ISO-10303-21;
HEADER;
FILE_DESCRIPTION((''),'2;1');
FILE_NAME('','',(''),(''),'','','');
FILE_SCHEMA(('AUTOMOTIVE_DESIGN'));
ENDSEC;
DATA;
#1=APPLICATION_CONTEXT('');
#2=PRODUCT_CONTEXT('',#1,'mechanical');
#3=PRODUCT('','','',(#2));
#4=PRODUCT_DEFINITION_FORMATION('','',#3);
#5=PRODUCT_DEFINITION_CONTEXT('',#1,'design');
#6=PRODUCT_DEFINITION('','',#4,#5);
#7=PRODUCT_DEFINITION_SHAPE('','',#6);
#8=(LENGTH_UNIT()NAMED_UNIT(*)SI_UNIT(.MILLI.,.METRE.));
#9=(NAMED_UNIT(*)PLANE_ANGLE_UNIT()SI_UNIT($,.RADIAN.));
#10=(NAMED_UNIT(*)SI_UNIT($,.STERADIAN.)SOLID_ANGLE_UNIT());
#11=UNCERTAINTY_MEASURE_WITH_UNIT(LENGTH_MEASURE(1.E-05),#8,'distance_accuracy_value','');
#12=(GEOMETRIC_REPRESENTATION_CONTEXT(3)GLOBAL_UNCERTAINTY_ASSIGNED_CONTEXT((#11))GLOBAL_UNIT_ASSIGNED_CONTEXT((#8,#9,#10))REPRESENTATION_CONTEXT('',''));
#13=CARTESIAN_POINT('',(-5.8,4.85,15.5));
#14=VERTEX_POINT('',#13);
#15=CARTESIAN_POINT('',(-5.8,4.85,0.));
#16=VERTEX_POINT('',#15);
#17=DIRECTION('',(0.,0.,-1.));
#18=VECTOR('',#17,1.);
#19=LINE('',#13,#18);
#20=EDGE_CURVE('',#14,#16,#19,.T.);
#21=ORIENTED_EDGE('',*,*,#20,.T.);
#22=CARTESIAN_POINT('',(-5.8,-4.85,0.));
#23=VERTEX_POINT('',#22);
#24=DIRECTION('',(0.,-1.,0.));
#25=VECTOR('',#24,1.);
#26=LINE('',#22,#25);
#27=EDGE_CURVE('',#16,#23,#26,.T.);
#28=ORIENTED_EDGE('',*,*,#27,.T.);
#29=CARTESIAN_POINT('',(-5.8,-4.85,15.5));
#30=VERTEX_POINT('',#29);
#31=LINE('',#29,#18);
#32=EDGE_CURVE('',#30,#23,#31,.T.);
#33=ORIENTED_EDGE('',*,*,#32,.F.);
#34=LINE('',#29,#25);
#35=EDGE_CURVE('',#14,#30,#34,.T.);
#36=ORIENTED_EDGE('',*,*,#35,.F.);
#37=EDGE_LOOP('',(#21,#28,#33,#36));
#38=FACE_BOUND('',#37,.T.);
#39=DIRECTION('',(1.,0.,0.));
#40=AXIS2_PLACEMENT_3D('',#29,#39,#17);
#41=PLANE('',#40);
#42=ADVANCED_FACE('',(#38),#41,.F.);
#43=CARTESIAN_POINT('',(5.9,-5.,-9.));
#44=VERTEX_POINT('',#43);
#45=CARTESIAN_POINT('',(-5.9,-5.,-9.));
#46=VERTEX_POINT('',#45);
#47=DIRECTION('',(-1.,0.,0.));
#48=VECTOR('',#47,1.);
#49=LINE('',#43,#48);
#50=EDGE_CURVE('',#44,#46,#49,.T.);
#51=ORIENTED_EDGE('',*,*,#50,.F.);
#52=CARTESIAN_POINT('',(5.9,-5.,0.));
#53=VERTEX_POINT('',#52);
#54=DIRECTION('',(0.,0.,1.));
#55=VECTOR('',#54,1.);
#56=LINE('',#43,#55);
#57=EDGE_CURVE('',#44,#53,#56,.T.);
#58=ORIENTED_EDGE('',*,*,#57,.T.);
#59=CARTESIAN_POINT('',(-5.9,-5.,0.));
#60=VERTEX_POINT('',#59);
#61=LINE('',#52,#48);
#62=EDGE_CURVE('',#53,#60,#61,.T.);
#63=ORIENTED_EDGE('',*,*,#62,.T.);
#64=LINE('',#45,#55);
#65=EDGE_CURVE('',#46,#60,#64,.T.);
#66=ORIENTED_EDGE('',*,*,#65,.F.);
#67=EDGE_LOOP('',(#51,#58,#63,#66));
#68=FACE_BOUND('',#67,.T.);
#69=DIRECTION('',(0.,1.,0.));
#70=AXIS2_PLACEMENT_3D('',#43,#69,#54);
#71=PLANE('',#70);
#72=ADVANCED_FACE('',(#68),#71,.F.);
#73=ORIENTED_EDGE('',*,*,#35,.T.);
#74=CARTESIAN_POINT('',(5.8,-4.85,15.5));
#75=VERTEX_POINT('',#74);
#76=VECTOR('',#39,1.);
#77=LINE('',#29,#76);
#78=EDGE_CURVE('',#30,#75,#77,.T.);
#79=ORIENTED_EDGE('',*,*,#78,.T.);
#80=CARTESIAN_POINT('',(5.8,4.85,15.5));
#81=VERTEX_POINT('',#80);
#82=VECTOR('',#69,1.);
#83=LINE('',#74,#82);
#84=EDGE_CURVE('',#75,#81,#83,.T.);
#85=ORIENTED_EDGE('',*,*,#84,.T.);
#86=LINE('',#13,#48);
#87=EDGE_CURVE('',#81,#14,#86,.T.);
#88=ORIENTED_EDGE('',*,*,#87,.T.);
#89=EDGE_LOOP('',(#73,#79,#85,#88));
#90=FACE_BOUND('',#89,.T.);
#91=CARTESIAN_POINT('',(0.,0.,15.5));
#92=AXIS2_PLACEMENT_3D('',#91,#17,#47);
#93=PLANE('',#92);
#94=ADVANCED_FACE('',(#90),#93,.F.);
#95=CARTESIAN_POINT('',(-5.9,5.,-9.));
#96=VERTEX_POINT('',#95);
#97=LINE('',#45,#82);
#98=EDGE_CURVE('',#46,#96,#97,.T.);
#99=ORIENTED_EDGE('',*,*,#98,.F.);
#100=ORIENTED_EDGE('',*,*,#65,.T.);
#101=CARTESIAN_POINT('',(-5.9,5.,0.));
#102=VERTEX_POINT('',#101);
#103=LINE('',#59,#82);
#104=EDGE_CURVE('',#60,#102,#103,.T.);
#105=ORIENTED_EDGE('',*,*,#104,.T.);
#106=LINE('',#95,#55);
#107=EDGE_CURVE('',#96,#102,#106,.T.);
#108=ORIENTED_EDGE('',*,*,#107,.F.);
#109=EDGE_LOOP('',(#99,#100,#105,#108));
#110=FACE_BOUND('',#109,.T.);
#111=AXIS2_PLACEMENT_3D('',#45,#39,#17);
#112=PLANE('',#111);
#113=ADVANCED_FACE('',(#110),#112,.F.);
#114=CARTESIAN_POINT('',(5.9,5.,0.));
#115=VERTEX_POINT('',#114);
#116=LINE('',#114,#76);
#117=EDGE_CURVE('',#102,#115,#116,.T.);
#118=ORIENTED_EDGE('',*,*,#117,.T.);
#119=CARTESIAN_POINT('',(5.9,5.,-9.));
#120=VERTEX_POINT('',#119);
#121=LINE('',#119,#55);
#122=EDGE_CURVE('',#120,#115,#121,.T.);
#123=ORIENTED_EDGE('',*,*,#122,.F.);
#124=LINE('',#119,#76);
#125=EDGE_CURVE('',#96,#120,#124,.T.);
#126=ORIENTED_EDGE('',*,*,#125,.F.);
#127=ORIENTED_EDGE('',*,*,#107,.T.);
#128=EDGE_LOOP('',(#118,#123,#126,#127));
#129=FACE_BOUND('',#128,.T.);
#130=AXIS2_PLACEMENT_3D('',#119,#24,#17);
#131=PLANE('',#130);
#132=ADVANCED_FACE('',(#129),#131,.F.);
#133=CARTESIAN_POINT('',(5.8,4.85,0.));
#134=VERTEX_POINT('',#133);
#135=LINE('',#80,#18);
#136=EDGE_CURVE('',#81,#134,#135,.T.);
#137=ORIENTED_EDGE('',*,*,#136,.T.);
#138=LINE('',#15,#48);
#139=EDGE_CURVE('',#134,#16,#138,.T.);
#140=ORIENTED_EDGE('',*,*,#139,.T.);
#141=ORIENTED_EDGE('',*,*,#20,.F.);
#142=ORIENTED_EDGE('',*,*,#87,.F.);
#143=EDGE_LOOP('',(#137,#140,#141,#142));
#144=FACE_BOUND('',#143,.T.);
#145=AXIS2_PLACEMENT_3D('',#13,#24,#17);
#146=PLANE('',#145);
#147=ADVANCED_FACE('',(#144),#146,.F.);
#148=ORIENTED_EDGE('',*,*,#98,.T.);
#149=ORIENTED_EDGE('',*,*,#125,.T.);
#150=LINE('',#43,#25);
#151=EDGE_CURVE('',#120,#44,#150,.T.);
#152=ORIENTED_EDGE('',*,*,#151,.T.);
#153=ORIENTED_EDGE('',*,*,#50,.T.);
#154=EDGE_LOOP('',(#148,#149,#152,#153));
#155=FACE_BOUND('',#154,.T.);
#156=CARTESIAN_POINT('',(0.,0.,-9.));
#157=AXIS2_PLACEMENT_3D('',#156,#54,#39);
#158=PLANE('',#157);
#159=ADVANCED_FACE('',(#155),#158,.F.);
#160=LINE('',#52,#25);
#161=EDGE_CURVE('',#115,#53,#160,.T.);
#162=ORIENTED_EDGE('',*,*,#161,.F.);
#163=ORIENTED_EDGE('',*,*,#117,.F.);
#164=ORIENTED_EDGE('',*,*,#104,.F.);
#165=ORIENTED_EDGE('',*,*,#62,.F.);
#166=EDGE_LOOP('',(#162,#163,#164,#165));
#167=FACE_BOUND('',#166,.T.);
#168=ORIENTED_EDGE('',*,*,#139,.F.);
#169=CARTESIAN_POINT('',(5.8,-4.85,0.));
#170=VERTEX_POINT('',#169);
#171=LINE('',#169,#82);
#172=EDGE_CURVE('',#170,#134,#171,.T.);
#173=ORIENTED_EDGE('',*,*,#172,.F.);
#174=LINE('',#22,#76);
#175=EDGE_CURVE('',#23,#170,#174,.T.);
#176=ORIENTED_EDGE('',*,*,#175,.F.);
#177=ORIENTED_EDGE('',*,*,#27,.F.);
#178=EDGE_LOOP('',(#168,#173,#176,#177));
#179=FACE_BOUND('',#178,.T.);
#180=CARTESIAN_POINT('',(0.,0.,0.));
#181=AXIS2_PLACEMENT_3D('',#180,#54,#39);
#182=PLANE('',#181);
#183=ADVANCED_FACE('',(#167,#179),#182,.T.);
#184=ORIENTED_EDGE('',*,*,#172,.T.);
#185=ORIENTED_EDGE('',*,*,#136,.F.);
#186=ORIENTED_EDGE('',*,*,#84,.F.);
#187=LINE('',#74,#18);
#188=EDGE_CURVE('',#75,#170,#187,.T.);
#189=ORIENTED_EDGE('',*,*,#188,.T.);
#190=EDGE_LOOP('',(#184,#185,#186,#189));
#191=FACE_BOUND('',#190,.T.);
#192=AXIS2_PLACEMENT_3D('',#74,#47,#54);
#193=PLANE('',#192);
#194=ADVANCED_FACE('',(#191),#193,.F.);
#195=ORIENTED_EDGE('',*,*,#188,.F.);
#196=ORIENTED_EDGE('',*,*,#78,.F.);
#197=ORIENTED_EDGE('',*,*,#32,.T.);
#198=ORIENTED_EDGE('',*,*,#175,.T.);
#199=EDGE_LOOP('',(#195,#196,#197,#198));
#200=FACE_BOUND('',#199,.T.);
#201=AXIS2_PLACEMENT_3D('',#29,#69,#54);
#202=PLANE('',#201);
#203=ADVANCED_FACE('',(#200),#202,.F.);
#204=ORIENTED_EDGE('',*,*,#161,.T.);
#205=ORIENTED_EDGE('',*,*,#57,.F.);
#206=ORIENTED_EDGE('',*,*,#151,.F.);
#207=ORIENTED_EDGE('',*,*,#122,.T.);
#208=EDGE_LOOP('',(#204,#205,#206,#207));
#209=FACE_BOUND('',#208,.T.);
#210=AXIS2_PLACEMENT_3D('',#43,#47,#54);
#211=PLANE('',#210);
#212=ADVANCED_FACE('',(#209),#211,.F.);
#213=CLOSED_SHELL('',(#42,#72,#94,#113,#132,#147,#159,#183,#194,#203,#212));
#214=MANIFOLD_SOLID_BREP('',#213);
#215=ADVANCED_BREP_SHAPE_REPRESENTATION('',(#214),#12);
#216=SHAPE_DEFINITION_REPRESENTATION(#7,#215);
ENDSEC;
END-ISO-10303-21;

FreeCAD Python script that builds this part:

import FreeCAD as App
import Part
import Sketcher
from FreeCAD import Vector
Q = App.Units.Quantity


def add_polygon(sketch, points):
    """Adds a closed chain of lines whose ends are joined by coincident constraints."""
    first, n = sketch.GeometryCount, len(points)
    for a, b in zip(points, points[1:] + points[:1]):
        sketch.addGeometry(Part.LineSegment(App.Vector(*a, 0), App.Vector(*b, 0)), False)
    for i in range(n):
        sketch.addConstraint(Sketcher.Constraint("Coincident", first + i, 2, first + (i + 1) % n, 1))

doc = App.newDocument("Part")
params = doc.addObject("Spreadsheet::Sheet", "Params")
for row, (alias, value) in enumerate([
    ("sketch1_width", "11.6 mm"),
    ("sketch1_height", "9.7 mm"),
    ("pad1_length", "15.5 mm"),
    ("sketch2_height", "10 mm"),
    ("sketch2_width", "11.8 mm"),
    ("pad2_length", "9 mm"),
], start=1):
    params.set(f"A{row}", alias)
    params.set(f"B{row}", "=" + value)
    params.setAlias(f"B{row}", alias)

body = doc.addObject("PartDesign::Body", "Body")

# Sketch on XY plane
sketch1 = body.newObject("Sketcher::SketchObject", "Sketch")
sketch1.AttachmentSupport = (doc.getObject("XY_Plane"), [""])
sketch1.MapMode = "FlatFace"
add_polygon(sketch1, [(-6, 5), (-6, -5), (6, -5), (6, 5)])  # lines 0-3
sketch1.addConstraint([
    Sketcher.Constraint("Vertical", 0),
    Sketcher.Constraint("Horizontal", 1),
    Sketcher.Constraint("Vertical", 2),
    Sketcher.Constraint("Horizontal", 3),
    Sketcher.Constraint("Symmetric", 0, 2, 2, 2, -1, 1),
    Sketcher.Constraint("DistanceX", 1, 1, 1, 2, Q("11.6 mm")),
    Sketcher.Constraint("DistanceY", 0, 2, 0, 1, Q("9.7 mm")),
])
sketch1.setExpression("Constraints[9]", "Params.sketch1_width")
sketch1.setExpression("Constraints[10]", "Params.sketch1_height")
pad1 = body.newObject("PartDesign::Pad", "Pad")
pad1.Profile = sketch1
pad1.setExpression("Length", "Params.pad1_length")

# Sketch on XY plane
sketch2 = body.newObject("Sketcher::SketchObject", "Sketch001")
sketch2.AttachmentSupport = (doc.getObject("XY_Plane"), [""])
sketch2.MapMode = "FlatFace"
add_polygon(sketch2, [(6, 5), (6, -5), (-6, -5), (-6, 5)])  # lines 0-3
sketch2.addConstraint([
    Sketcher.Constraint("Vertical", 0),
    Sketcher.Constraint("Horizontal", 1),
    Sketcher.Constraint("Vertical", 2),
    Sketcher.Constraint("Horizontal", 3),
    Sketcher.Constraint("Symmetric", 0, 2, 2, 2, -1, 1),
    Sketcher.Constraint("DistanceY", 0, 2, 0, 1, Q("10 mm")),
    Sketcher.Constraint("DistanceX", 1, 2, 1, 1, Q("11.8 mm")),
])
sketch2.setExpression("Constraints[9]", "Params.sketch2_height")
sketch2.setExpression("Constraints[10]", "Params.sketch2_width")
pad2 = body.newObject("PartDesign::Pad", "Pad001")
pad2.Profile = sketch2
pad2.setExpression("Length", "Params.pad2_length")
pad2.Reversed = True

doc.recompute()
